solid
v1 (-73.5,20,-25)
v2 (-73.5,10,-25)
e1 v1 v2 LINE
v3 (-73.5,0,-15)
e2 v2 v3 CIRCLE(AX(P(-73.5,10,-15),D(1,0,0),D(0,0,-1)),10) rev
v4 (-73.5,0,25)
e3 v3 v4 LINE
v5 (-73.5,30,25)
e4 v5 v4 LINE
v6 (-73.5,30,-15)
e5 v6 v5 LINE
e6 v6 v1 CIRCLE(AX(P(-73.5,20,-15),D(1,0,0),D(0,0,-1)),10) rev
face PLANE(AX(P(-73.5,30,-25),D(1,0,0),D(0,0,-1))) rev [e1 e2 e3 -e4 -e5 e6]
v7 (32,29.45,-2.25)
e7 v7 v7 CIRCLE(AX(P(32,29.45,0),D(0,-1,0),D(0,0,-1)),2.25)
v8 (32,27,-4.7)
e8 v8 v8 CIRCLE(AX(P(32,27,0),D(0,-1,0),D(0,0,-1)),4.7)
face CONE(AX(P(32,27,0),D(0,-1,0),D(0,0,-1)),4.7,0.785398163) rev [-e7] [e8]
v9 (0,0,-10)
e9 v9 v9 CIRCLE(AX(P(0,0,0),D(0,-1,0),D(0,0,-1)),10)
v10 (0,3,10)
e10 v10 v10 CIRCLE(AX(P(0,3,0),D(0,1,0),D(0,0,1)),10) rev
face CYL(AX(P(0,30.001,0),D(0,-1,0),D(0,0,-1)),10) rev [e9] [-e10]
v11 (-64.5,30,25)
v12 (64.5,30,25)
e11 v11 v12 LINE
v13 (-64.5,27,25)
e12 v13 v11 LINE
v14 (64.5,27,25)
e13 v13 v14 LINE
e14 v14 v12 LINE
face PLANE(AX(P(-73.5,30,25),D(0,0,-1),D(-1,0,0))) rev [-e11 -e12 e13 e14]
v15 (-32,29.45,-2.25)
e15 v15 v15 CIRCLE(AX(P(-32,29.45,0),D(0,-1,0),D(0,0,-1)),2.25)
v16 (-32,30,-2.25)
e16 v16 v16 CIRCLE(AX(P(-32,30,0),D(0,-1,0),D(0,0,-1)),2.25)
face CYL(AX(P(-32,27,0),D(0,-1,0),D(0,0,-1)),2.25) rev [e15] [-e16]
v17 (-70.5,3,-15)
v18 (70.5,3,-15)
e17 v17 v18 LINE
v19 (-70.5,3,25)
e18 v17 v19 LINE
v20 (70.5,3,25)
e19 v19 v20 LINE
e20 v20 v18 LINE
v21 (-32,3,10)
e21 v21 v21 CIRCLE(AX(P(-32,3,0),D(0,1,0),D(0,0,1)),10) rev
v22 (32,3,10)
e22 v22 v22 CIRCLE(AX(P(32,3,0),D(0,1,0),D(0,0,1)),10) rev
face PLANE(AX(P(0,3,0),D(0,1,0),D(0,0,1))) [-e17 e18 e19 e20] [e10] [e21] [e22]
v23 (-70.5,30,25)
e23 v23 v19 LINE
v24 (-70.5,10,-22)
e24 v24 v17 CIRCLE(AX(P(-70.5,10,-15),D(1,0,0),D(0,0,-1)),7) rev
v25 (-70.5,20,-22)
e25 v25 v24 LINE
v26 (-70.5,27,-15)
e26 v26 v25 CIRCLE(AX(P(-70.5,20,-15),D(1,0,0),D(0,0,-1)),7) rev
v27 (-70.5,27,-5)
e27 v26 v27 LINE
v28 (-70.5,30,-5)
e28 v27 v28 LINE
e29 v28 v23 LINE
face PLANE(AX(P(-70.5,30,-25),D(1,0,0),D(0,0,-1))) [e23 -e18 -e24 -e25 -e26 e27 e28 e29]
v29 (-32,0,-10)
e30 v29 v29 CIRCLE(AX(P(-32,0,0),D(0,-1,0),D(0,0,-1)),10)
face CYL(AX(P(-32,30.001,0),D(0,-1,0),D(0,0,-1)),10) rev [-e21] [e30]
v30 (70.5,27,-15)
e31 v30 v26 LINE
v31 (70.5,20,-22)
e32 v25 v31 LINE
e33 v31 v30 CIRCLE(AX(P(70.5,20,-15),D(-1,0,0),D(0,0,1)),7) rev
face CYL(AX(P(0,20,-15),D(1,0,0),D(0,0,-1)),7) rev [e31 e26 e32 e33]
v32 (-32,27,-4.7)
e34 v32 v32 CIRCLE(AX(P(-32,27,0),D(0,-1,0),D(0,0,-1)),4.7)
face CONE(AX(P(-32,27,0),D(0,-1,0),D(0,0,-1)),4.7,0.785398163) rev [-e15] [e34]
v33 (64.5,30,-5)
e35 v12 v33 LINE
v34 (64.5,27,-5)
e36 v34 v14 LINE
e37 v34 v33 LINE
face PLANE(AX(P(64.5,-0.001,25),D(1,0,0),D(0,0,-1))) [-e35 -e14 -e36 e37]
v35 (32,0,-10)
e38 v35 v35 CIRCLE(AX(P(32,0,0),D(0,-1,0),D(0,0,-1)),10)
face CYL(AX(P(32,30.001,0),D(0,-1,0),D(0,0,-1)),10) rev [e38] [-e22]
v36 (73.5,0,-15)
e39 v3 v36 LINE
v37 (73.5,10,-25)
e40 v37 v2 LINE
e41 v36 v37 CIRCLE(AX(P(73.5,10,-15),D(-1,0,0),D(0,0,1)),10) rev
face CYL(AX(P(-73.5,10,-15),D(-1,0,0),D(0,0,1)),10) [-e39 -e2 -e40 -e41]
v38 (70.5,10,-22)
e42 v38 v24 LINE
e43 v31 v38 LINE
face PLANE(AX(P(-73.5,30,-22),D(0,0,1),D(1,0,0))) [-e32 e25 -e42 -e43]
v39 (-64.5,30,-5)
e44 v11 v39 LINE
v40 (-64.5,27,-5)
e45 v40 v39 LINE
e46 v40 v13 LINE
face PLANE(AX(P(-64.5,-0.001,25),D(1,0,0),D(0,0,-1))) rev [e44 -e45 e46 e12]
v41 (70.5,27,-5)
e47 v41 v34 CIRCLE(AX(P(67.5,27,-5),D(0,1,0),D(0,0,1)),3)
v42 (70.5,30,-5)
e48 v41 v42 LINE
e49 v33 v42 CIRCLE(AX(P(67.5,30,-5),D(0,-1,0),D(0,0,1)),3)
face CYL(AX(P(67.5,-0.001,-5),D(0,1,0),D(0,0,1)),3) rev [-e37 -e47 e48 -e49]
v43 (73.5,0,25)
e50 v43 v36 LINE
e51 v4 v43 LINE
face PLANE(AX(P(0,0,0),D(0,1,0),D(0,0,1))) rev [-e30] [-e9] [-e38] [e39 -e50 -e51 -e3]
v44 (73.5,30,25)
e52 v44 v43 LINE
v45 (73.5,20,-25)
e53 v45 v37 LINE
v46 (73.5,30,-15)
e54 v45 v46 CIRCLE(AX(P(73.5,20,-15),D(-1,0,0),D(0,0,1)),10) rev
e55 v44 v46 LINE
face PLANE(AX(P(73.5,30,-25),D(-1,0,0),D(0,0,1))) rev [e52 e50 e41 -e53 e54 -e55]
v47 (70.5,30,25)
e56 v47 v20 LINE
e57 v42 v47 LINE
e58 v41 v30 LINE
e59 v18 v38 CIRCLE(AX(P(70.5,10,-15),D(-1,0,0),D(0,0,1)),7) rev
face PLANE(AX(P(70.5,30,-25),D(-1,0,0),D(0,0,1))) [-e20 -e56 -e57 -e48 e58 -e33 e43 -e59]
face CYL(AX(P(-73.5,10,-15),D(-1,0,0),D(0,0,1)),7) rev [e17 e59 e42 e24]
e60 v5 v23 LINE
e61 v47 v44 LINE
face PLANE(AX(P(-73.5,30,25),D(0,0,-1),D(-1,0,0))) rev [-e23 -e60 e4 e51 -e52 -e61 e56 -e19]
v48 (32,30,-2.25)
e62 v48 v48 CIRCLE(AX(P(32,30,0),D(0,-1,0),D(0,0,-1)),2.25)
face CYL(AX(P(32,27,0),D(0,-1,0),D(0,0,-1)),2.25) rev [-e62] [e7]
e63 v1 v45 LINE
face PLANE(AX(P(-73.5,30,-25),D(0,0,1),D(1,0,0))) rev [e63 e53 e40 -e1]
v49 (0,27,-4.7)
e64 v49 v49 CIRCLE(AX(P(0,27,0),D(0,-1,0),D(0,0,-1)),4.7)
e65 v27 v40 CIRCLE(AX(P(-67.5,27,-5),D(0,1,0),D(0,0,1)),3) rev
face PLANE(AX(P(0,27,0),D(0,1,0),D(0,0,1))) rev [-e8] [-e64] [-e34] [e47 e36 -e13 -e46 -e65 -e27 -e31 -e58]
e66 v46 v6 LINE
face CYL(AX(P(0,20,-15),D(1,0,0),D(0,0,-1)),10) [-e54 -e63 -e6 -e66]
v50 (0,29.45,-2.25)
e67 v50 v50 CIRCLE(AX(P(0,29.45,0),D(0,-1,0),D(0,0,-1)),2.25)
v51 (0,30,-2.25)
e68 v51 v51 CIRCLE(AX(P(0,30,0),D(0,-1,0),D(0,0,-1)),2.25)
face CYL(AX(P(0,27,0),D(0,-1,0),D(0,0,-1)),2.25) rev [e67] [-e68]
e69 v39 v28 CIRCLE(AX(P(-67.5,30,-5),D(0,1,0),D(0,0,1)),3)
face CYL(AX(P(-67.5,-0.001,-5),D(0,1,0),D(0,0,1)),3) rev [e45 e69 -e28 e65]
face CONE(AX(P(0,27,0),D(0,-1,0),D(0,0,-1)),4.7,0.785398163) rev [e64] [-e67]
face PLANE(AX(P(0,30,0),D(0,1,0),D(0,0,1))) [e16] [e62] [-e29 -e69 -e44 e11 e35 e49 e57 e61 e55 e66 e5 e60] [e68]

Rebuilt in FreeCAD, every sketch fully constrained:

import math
import FreeCAD as App
import Part
import Sketcher

V = App.Vector
Q = App.Units.Quantity


def edges_at(feature, points):
    """Names of the edges that pass closest to the given points."""
    edges = feature.Shape.Edges
    near = lambda p: min(range(len(edges)), key=lambda i: edges[i].distToShape(Part.Vertex(*p))[0])
    return sorted({f"Edge{near(p) + 1}" for p in points})


def faces_at(feature, points):
    """Names of the faces that lie closest to the given points."""
    faces = feature.Shape.Faces
    near = lambda p: min(range(len(faces)), key=lambda i: faces[i].distToShape(Part.Vertex(*p))[0])
    return sorted({f"Face{near(p) + 1}" for p in points})

doc = App.newDocument("Part")
body = doc.addObject("PartDesign::Body", "Body")

# Sketch on XZ plane
sketch1 = body.newObject("Sketcher::SketchObject", "Sketch")
sketch1.AttachmentSupport = (doc.getObject("XZ_Plane"), [""])
sketch1.MapMode = "FlatFace"
sketch1.addGeometry(Part.LineSegment(V(-74, -25, 0), V(-74, 25, 0)), False)
sketch1.addGeometry(Part.LineSegment(V(-74, 25, 0), V(74, 25, 0)), False)
sketch1.addGeometry(Part.LineSegment(V(74, 25, 0), V(74, -25, 0)), False)
sketch1.addGeometry(Part.LineSegment(V(74, -25, 0), V(-74, -25, 0)), False)
sketch1.addConstraint(Sketcher.Constraint("Coincident", 0, 2, 1, 1))
sketch1.addConstraint(Sketcher.Constraint("Coincident", 1, 2, 2, 1))
sketch1.addConstraint(Sketcher.Constraint("Coincident", 2, 2, 3, 1))
sketch1.addConstraint(Sketcher.Constraint("Coincident", 3, 2, 0, 1))
sketch1.addConstraint(Sketcher.Constraint("Vertical", 0))
sketch1.addConstraint(Sketcher.Constraint("Horizontal", 1))
sketch1.addConstraint(Sketcher.Constraint("Vertical", 2))
sketch1.addConstraint(Sketcher.Constraint("Horizontal", 3))
sketch1.addConstraint(Sketcher.Constraint("Symmetric", 0, 2, 2, 2, -1, 1))
sketch1.addConstraint(Sketcher.Constraint("DistanceX", 1, 1, 1, 2, Q("147 mm")))
sketch1.addConstraint(Sketcher.Constraint("DistanceY", 0, 1, 0, 2, Q("50 mm")))
pad1 = body.newObject("PartDesign::Pad", "Pad")
pad1.Profile = sketch1
pad1.Length = 30
pad1.Reversed = True
doc.recompute()

fillet = body.newObject("PartDesign::Fillet", "Fillet")
fillet.Base = (pad1, edges_at(pad1, [(0, 0, -25), (0, 30, -25)]))
fillet.Radius = 10
doc.recompute()

thickness = body.newObject("PartDesign::Thickness", "Thickness")
thickness.Base = (fillet, faces_at(fillet, [(0, 15, 25)]))
thickness.Value = 3
thickness.Reversed = True
thickness.Join = "Intersection"

# Sketch on XZ plane
sketch2 = body.newObject("Sketcher::SketchObject", "Sketch001")
sketch2.AttachmentSupport = (doc.getObject("XZ_Plane"), [""])
sketch2.MapMode = "FlatFace"
sketch2.AttachmentOffset = App.Placement(V(0, 0, -30), App.Rotation())
sketch2.addGeometry(Part.LineSegment(V(-70.5, -5, 0), V(-70.5, 25, 0)), False)
sketch2.addGeometry(Part.LineSegment(V(-70.5, 25, 0), V(-64.5, 25, 0)), False)
sketch2.addGeometry(Part.LineSegment(V(-64.5, 25, 0), V(-64.5, -5, 0)), False)
sketch2.addGeometry(Part.ArcOfCircle(Part.Circle(V(-67.5, -5, 0), V(0, 0, 1), 3), math.radians(180), math.radians(360)), False)
sketch2.addConstraint(Sketcher.Constraint("Coincident", 0, 2, 1, 1))
sketch2.addConstraint(Sketcher.Constraint("Coincident", 1, 2, 2, 1))
sketch2.addConstraint(Sketcher.Constraint("Tangent", 2, 2, 3, 2))
sketch2.addConstraint(Sketcher.Constraint("Tangent", 3, 1, 0, 1))
sketch2.addConstraint(Sketcher.Constraint("Vertical", 0))
sketch2.addConstraint(Sketcher.Constraint("Horizontal", 1))
sketch2.addConstraint(Sketcher.Constraint("Vertical", 2))
sketch2.addConstraint(Sketcher.Constraint("Radius", 3, Q("3 mm")))
sketch2.addConstraint(Sketcher.Constraint("DistanceY", 0, 1, 0, 2, Q("30 mm")))
sketch2.addConstraint(Sketcher.Constraint("DistanceY", 3, 3, -1, 1, Q("5 mm")))
sketch2.addConstraint(Sketcher.Constraint("DistanceX", 3, 3, -1, 1, Q("67.5 mm")))
pocket1 = body.newObject("PartDesign::Pocket", "Pocket")
pocket1.Profile = sketch2
pocket1.Length = 3
pocket1.Reversed = True
doc.recompute()

mirrored = body.newObject("PartDesign::Mirrored", "Mirrored")
mirrored.Originals = [pocket1]
mirrored.MirrorPlane = (doc.getObject("YZ_Plane"), [""])
body.Tip = mirrored

# Sketch on YZ plane
sketch3 = body.newObject("Sketcher::SketchObject", "Sketch002")
sketch3.AttachmentSupport = (doc.getObject("YZ_Plane"), [""])
sketch3.MapMode = "FlatFace"
sketch3.AttachmentOffset = App.Placement(V(0, 0, -32), App.Rotation())
sketch3.addGeometry(Part.LineSegment(V(30, 0, 0), V(27, 0, 0)), False)
sketch3.addGeometry(Part.LineSegment(V(27, 0, 0), V(27, -4.7, 0)), False)
sketch3.addGeometry(Part.LineSegment(V(27, -4.7, 0), V(29.4, -2.2, 0)), False)
sketch3.addGeometry(Part.LineSegment(V(29.4, -2.2, 0), V(30, -2.2, 0)), False)
sketch3.addGeometry(Part.LineSegment(V(30, -2.2, 0), V(30, 0, 0)), False)
sketch3.addConstraint(Sketcher.Constraint("Coincident", 0, 2, 1, 1))
sketch3.addConstraint(Sketcher.Constraint("Coincident", 1, 2, 2, 1))
sketch3.addConstraint(Sketcher.Constraint("Coincident", 2, 2, 3, 1))
sketch3.addConstraint(Sketcher.Constraint("Coincident", 3, 2, 4, 1))
sketch3.addConstraint(Sketcher.Constraint("Coincident", 4, 2, 0, 1))
sketch3.addConstraint(Sketcher.Constraint("Horizontal", 0))
sketch3.addConstraint(Sketcher.Constraint("Vertical", 1))
sketch3.addConstraint(Sketcher.Constraint("Horizontal", 3))
sketch3.addConstraint(Sketcher.Constraint("Vertical", 4))
sketch3.addConstraint(Sketcher.Constraint("PointOnObject", 0, 2, -1))
sketch3.addConstraint(Sketcher.Constraint("DistanceX", 0, 2, 0, 1, Q("3 mm")))
sketch3.addConstraint(Sketcher.Constraint("Angle", 2, Q("45 deg")))
sketch3.addConstraint(Sketcher.Constraint("DistanceY", 1, 2, 1, 1, Q("4.7 mm")))
sketch3.addConstraint(Sketcher.Constraint("DistanceX", -1, 1, 0, 2, Q("27 mm")))
sketch3.addConstraint(Sketcher.Constraint("DistanceX", 3, 1, 3, 2, Q("0.55 mm")))
groove = body.newObject("PartDesign::Groove", "Groove")
groove.Profile = sketch3
groove.ReferenceAxis = (sketch3, ["H_Axis"])
groove.Angle = 360
doc.recompute()

linearpattern = body.newObject("PartDesign::LinearPattern", "LinearPattern")
linearpattern.Originals = [groove]
linearpattern.Direction = (doc.getObject("X_Axis"), [""])
linearpattern.Mode = "offset"
linearpattern.Offset = 32
linearpattern.Occurrences = 2
body.Tip = linearpattern
doc.recompute()

linearpattern2 = body.newObject("PartDesign::LinearPattern", "LinearPattern001")
linearpattern2.Originals = [groove]
linearpattern2.Direction = (doc.getObject("X_Axis"), [""])
linearpattern2.Mode = "offset"
linearpattern2.Offset = 64
linearpattern2.Occurrences = 2
body.Tip = linearpattern2

# Sketch on XZ plane
sketch4 = body.newObject("Sketcher::SketchObject", "Sketch003")
sketch4.AttachmentSupport = (doc.getObject("XZ_Plane"), [""])
sketch4.MapMode = "FlatFace"
sketch4.addGeometry(Part.Circle(V(0, 0, 0), V(0, 0, 1), 10), False)
sketch4.addConstraint(Sketcher.Constraint("Coincident", 0, 3, -1, 1))
sketch4.addConstraint(Sketcher.Constraint("Diameter", 0, Q("20 mm")))
pocket2 = body.newObject("PartDesign::Pocket", "Pocket001")
pocket2.Profile = sketch4
pocket2.Type = "UpToFirst"

# Sketch on XZ plane
sketch5 = body.newObject("Sketcher::SketchObject", "Sketch004")
sketch5.AttachmentSupport = (doc.getObject("XZ_Plane"), [""])
sketch5.MapMode = "FlatFace"
sketch5.addGeometry(Part.Circle(V(-32, 0, 0), V(0, 0, 1), 10), False)
sketch5.addConstraint(Sketcher.Constraint("PointOnObject", 0, 3, -1))
sketch5.addConstraint(Sketcher.Constraint("Diameter", 0, Q("20 mm")))
sketch5.addConstraint(Sketcher.Constraint("DistanceX", 0, 3, -1, 1, Q("32 mm")))
pocket3 = body.newObject("PartDesign::Pocket", "Pocket002")
pocket3.Profile = sketch5
pocket3.Type = "UpToFirst"

# Sketch on XZ plane
sketch6 = body.newObject("Sketcher::SketchObject", "Sketch005")
sketch6.AttachmentSupport = (doc.getObject("XZ_Plane"), [""])
sketch6.MapMode = "FlatFace"
sketch6.addGeometry(Part.Circle(V(32, 0, 0), V(0, 0, 1), 10), False)
sketch6.addConstraint(Sketcher.Constraint("PointOnObject", 0, 3, -1))
sketch6.addConstraint(Sketcher.Constraint("Diameter", 0, Q("20 mm")))
sketch6.addConstraint(Sketcher.Constraint("DistanceX", -1, 1, 0, 3, Q("32 mm")))
pocket4 = body.newObject("PartDesign::Pocket", "Pocket003")
pocket4.Profile = sketch6
pocket4.Type = "UpToFirst"

doc.recompute()
